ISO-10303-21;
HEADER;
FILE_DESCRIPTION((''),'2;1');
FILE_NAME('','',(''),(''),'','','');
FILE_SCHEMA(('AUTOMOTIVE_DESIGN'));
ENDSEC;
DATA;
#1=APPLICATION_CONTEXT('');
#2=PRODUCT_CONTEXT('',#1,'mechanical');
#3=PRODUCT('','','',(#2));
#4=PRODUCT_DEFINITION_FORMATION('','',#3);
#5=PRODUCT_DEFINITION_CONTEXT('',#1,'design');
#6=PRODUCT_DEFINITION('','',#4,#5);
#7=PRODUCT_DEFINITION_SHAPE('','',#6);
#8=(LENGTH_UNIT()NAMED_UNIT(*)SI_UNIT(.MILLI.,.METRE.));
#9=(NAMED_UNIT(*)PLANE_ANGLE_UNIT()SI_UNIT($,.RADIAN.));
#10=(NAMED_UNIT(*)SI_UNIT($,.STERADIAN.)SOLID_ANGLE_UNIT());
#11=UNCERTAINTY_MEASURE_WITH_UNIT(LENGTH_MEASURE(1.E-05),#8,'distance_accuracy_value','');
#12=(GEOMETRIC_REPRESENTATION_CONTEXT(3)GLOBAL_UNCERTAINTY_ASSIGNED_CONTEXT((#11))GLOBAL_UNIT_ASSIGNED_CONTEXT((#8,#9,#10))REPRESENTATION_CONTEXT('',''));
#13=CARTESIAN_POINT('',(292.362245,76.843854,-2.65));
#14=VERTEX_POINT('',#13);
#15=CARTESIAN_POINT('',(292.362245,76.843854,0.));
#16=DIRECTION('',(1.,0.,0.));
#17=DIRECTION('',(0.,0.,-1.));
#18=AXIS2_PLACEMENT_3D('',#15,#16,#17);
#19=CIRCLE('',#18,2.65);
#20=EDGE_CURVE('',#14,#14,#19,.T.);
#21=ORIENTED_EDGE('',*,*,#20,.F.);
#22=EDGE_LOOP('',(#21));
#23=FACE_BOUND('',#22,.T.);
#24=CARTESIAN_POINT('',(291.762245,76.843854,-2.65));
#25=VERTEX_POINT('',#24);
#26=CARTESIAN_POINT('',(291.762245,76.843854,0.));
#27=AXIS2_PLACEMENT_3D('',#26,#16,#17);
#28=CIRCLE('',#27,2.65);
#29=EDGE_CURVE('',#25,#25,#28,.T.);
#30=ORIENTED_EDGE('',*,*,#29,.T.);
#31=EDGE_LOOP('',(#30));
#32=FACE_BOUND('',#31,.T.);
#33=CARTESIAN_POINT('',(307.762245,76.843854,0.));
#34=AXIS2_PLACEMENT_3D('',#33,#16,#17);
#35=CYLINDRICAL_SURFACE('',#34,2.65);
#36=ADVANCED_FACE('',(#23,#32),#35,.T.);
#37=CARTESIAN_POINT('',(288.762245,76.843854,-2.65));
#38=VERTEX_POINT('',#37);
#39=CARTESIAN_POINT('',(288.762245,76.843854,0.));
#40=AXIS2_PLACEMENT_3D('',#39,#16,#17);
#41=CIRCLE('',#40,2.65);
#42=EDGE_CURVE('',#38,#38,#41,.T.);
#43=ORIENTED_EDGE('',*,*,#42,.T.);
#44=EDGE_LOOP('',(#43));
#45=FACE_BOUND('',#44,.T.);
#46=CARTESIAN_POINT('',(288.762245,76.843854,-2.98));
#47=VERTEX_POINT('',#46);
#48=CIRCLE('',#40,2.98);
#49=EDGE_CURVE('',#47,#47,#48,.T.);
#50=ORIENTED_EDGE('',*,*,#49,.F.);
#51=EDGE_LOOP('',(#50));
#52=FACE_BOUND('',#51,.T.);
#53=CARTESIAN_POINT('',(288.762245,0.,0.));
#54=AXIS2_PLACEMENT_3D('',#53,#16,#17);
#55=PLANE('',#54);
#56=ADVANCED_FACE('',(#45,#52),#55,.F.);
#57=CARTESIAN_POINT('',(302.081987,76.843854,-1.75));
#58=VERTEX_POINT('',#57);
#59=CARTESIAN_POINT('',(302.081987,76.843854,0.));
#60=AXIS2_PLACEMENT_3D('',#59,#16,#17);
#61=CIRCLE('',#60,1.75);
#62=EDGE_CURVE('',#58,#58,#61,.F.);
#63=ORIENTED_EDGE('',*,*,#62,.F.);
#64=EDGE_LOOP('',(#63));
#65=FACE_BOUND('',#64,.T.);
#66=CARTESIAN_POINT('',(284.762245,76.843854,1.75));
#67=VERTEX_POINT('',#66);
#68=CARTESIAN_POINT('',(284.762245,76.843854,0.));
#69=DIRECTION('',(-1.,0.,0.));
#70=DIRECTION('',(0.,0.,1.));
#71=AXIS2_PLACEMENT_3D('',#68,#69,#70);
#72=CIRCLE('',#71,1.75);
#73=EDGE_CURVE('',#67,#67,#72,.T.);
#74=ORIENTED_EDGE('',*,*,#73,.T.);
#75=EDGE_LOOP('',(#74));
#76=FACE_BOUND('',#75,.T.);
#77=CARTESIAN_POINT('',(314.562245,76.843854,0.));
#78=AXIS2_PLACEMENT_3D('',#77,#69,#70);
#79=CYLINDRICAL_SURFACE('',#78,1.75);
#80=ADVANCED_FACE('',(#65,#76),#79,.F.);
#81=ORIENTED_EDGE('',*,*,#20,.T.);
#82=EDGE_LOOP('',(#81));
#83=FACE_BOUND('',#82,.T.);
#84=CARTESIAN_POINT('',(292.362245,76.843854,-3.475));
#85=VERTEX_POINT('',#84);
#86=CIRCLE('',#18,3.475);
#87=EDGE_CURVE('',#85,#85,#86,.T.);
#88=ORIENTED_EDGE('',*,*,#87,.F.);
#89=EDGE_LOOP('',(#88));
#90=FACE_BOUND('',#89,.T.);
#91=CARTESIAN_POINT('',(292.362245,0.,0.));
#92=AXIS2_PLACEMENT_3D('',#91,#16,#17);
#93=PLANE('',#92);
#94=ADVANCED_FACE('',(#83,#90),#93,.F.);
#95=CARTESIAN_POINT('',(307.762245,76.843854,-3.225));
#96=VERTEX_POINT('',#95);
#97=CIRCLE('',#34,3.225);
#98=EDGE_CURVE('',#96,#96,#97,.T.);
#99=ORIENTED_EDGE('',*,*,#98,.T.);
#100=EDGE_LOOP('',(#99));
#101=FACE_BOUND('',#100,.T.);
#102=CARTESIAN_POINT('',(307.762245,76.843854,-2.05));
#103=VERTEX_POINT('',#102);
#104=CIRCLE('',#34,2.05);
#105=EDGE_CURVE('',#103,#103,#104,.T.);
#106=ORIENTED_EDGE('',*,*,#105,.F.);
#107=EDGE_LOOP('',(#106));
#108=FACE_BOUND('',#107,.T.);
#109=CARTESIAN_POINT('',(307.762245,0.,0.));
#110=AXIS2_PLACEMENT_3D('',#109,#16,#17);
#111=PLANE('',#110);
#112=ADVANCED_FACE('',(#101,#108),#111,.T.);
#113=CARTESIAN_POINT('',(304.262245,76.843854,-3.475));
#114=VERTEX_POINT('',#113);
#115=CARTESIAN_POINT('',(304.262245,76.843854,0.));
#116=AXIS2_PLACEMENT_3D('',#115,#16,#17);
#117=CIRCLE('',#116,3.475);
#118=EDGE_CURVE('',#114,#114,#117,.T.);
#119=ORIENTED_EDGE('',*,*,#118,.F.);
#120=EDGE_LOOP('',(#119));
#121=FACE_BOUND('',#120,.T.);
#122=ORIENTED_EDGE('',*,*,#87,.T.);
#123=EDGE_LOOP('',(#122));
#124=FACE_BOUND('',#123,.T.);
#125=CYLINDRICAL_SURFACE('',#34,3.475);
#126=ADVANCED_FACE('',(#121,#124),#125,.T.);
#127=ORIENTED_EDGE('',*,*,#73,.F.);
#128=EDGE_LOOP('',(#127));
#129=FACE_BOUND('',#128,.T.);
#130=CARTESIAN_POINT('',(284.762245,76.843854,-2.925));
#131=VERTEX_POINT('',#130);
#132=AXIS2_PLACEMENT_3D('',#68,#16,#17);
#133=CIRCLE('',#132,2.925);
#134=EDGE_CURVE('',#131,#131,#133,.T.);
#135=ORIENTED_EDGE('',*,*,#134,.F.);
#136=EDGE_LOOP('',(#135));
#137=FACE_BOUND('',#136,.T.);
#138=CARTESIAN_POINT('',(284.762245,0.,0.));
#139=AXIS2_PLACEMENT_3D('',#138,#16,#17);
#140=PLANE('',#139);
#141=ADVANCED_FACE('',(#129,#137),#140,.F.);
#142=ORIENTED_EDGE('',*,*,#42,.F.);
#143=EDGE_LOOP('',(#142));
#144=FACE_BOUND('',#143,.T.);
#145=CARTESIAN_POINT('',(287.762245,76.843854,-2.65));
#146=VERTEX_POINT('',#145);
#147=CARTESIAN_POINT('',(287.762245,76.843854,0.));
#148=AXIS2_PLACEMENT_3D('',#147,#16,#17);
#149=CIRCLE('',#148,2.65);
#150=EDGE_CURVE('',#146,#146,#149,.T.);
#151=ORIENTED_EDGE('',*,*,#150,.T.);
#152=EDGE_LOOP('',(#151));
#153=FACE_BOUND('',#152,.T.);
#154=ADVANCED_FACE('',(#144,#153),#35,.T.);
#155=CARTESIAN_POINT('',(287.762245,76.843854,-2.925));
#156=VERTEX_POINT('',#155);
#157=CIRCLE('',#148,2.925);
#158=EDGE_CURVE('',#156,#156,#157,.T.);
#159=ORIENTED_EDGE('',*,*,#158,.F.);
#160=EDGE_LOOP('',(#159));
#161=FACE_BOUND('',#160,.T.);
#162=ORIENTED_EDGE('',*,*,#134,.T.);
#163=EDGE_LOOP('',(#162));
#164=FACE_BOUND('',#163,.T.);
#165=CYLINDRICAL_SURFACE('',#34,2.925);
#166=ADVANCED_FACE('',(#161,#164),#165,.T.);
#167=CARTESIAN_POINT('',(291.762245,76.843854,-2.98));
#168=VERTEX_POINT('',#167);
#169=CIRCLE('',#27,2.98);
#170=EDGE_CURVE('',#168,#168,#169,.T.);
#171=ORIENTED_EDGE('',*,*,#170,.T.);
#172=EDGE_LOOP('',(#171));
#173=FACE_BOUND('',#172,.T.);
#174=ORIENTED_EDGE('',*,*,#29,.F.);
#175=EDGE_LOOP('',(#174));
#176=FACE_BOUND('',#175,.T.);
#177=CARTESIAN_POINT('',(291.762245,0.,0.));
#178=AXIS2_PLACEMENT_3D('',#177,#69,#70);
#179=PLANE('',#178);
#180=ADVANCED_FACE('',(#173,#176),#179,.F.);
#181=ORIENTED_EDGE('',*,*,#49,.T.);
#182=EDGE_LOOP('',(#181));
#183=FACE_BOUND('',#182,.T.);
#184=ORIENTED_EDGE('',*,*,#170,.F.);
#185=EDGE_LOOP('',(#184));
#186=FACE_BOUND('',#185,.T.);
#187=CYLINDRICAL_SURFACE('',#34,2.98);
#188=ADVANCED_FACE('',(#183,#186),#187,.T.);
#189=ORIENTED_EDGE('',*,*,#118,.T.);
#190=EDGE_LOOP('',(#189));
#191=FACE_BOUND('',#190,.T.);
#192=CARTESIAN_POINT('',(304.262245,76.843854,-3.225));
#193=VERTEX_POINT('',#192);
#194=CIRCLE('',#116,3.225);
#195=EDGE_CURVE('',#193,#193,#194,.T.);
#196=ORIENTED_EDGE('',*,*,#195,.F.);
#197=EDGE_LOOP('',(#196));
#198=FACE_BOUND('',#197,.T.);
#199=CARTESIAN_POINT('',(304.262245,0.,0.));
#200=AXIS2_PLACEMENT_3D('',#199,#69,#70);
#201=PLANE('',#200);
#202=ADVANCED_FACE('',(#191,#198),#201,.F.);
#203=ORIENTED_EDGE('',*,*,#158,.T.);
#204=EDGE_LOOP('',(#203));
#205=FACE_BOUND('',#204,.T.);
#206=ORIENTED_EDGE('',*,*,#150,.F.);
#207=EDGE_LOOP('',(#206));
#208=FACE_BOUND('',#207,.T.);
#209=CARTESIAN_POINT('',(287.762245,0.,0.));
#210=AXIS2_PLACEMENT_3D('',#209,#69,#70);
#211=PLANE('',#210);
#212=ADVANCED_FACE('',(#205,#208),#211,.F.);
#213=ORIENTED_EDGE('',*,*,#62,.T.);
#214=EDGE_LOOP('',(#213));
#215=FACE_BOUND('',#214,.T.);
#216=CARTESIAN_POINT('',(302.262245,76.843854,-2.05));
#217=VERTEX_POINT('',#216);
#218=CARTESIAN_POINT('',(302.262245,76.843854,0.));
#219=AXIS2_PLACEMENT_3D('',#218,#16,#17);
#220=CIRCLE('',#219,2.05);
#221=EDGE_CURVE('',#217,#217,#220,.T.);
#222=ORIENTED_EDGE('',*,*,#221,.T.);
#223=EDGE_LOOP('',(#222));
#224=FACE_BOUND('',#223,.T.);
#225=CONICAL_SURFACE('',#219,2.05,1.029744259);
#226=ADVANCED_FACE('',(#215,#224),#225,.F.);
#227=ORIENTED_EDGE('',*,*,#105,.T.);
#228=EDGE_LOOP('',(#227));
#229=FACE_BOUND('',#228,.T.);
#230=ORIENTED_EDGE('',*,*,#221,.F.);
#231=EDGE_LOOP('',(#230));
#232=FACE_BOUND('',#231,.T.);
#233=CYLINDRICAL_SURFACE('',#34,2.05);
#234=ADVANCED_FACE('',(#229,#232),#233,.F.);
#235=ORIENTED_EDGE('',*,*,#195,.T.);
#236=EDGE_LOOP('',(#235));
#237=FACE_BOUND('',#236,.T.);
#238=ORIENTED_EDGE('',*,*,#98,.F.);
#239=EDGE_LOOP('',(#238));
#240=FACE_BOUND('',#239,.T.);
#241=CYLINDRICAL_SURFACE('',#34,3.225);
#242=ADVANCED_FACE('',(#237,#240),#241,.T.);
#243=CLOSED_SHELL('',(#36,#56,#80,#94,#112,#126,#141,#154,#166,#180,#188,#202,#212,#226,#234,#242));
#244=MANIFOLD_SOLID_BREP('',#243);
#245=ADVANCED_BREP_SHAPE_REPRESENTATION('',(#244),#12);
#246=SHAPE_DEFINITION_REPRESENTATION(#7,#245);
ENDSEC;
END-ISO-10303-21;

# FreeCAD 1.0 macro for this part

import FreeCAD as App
import Part
import Sketcher
from FreeCAD import Vector


def add_polygon(sketch, points):
    """Adds a closed chain of lines whose ends are joined by coincident constraints."""
    first, n = sketch.GeometryCount, len(points)
    for a, b in zip(points, points[1:] + points[:1]):
        sketch.addGeometry(Part.LineSegment(App.Vector(*a, 0), App.Vector(*b, 0)), False)
    for i in range(n):
        sketch.addConstraint(Sketcher.Constraint("Coincident", first + i, 2, first + (i + 1) % n, 1))

doc = App.newDocument("Part")
params = doc.addObject("Spreadsheet::Sheet", "Params")
for row, (alias, value) in enumerate([
    ("sketch1_width", "3 mm"),
    ("sketch1_width2", "1 mm"),
    ("sketch1_width3", "23 mm"),
    ("sketch1_width4", "11.9 mm"),
    ("sketch1_width5", "0.6 mm"),
    ("revolution_angle", "360 deg"),
    ("sketch2_diameter", "4.1 mm"),
    ("hole_diameter", "4.1 mm"),
    ("hole_depth", "5.5 mm"),
    ("sketch3_diameter", "3.5 mm"),
    ("pocket1_length", "29.8 mm"),
], start=1):
    params.set(f"A{row}", alias)
    params.set(f"B{row}", "=" + value)
    params.setAlias(f"B{row}", alias)

body = doc.addObject("PartDesign::Body", "Body")

sketch1 = doc.addObject("Sketcher::SketchObject", "Sketch")
body.addObject(sketch1)
sketch1.AttachmentSupport = (doc.XY_Plane, [""])
sketch1.MapMode = "FlatFace"
add_polygon(sketch1, [(304.26, 80.32), (292.36, 80.32), (292.36, 79.49), (291.76, 79.49), (291.76, 79.82), (288.76, 79.82), (288.76, 79.49), (287.76, 79.49), (287.76, 79.77), (284.76, 79.77), (284.76, 76.84), (307.76, 76.84), (307.76, 80.07), (304.26, 80.07)])
sketch1.addGeometry(Part.LineSegment(Vector(307.76, 76.84, 0), Vector(284.76, 76.84, 0)), True)
sketch1.addConstraint(Sketcher.Constraint("Horizontal", 0))
sketch1.addConstraint(Sketcher.Constraint("Vertical", 1))
sketch1.addConstraint(Sketcher.Constraint("Horizontal", 2))
sketch1.addConstraint(Sketcher.Constraint("Vertical", 3))
sketch1.addConstraint(Sketcher.Constraint("Horizontal", 4))
sketch1.addConstraint(Sketcher.Constraint("Vertical", 5))
sketch1.addConstraint(Sketcher.Constraint("Horizontal", 6))
sketch1.addConstraint(Sketcher.Constraint("Vertical", 7))
sketch1.addConstraint(Sketcher.Constraint("Horizontal", 8))
sketch1.addConstraint(Sketcher.Constraint("Vertical", 9))
sketch1.addConstraint(Sketcher.Constraint("Horizontal", 10))
sketch1.addConstraint(Sketcher.Constraint("Vertical", 11))
sketch1.addConstraint(Sketcher.Constraint("Horizontal", 12))
sketch1.addConstraint(Sketcher.Constraint("Vertical", 13))
sketch1.addConstraint(Sketcher.Constraint("Horizontal", 14))
sketch1.addConstraint(Sketcher.Constraint("Coincident", 14, 1, 10, 2))
sketch1.addConstraint(Sketcher.Constraint("Horizontal", 2, 2, 5, 2))
sketch1.addConstraint(Sketcher.Constraint("Vertical", 8, 2, 14, 2))
sketch1.addConstraint(Sketcher.Constraint("Equal", 4, 8))
sketch1.addConstraint(Sketcher.Constraint("DistanceX", 4, 2, 4, 1, 3.0))
sketch1.addConstraint(Sketcher.Constraint("DistanceX", 6, 2, 6, 1, 1.0))
sketch1.addConstraint(Sketcher.Constraint("DistanceX", 10, 1, 10, 2, 23.0))
sketch1.addConstraint(Sketcher.Constraint("DistanceX", 0, 2, 0, 1, 11.9))
sketch1.addConstraint(Sketcher.Constraint("DistanceX", 2, 2, 2, 1, 0.6))
sketch1.addConstraint(Sketcher.Constraint("DistanceY", 3, 1, 3, 2, 0.33))
sketch1.addConstraint(Sketcher.Constraint("DistanceY", 13, 1, 13, 2, 0.25))
sketch1.addConstraint(Sketcher.Constraint("DistanceY", 1, 2, 1, 1, 0.825))
sketch1.addConstraint(Sketcher.Constraint("DistanceY", 7, 1, 7, 2, 0.275))
sketch1.addConstraint(Sketcher.Constraint("DistanceY", 9, 2, 9, 1, 2.925))
sketch1.addConstraint(Sketcher.Constraint("DistanceX", -1, 1, 0, 2, 292.362245))
sketch1.addConstraint(Sketcher.Constraint("DistanceY", -1, 1, 0, 2, 80.318854))
sketch1.setExpression("Constraints[33]", "Params.sketch1_width")
sketch1.setExpression("Constraints[34]", "Params.sketch1_width2")
sketch1.setExpression("Constraints[35]", "Params.sketch1_width3")
sketch1.setExpression("Constraints[36]", "Params.sketch1_width4")
sketch1.setExpression("Constraints[37]", "Params.sketch1_width5")
revolution = doc.addObject("PartDesign::Revolution", "Revolution")
body.addObject(revolution)
revolution.Profile = sketch1
revolution.ReferenceAxis = (sketch1, ["Axis0"])
revolution.setExpression("Angle", "Params.revolution_angle")

sketch2 = doc.addObject("Sketcher::SketchObject", "Sketch001")
body.addObject(sketch2)
sketch2.AttachmentSupport = (doc.YZ_Plane, [""])
sketch2.MapMode = "FlatFace"
sketch2.AttachmentOffset = App.Placement(Vector(0, 0, 307.762245), App.Rotation())
sketch2.addGeometry(Part.Circle(Vector(76.8, 0, 0), Vector(0, 0, 1), 2), False)
sketch2.addConstraint(Sketcher.Constraint("PointOnObject", 0, 3, -1))
sketch2.addConstraint(Sketcher.Constraint("Diameter", 0, 4.1))
sketch2.addConstraint(Sketcher.Constraint("DistanceX", -1, 1, 0, 3, 76.843854))
sketch2.setExpression("Constraints[1]", "Params.sketch2_diameter")
doc.recompute()
hole = doc.addObject("PartDesign::Hole", "Hole")
body.addObject(hole)
hole.Profile = sketch2
hole.ThreadType = "None"
hole.setExpression("Diameter", "Params.hole_diameter")
hole.DepthType = "Dimension"
hole.setExpression("Depth", "Params.hole_depth")
hole.DrillPoint = "Angled"
hole.DrillPointAngle = 118

sketch3 = doc.addObject("Sketcher::SketchObject", "Sketch002")
body.addObject(sketch3)
sketch3.AttachmentSupport = (doc.YZ_Plane, [""])
sketch3.MapMode = "FlatFace"
sketch3.AttachmentOffset = App.Placement(Vector(0, 0, 284.762245), App.Rotation())
sketch3.addGeometry(Part.Circle(Vector(76.8, 0, 0), Vector(0, 0, 1), 1.8), False)
sketch3.addConstraint(Sketcher.Constraint("PointOnObject", 0, 3, -1))
sketch3.addConstraint(Sketcher.Constraint("Diameter", 0, 3.5))
sketch3.addConstraint(Sketcher.Constraint("DistanceX", -1, 1, 0, 3, 76.843854))
sketch3.setExpression("Constraints[1]", "Params.sketch3_diameter")
pocket1 = doc.addObject("PartDesign::Pocket", "Pocket")
body.addObject(pocket1)
pocket1.Profile = sketch3
pocket1.setExpression("Length", "Params.pocket1_length")
pocket1.Reversed = True

doc.recompute()
